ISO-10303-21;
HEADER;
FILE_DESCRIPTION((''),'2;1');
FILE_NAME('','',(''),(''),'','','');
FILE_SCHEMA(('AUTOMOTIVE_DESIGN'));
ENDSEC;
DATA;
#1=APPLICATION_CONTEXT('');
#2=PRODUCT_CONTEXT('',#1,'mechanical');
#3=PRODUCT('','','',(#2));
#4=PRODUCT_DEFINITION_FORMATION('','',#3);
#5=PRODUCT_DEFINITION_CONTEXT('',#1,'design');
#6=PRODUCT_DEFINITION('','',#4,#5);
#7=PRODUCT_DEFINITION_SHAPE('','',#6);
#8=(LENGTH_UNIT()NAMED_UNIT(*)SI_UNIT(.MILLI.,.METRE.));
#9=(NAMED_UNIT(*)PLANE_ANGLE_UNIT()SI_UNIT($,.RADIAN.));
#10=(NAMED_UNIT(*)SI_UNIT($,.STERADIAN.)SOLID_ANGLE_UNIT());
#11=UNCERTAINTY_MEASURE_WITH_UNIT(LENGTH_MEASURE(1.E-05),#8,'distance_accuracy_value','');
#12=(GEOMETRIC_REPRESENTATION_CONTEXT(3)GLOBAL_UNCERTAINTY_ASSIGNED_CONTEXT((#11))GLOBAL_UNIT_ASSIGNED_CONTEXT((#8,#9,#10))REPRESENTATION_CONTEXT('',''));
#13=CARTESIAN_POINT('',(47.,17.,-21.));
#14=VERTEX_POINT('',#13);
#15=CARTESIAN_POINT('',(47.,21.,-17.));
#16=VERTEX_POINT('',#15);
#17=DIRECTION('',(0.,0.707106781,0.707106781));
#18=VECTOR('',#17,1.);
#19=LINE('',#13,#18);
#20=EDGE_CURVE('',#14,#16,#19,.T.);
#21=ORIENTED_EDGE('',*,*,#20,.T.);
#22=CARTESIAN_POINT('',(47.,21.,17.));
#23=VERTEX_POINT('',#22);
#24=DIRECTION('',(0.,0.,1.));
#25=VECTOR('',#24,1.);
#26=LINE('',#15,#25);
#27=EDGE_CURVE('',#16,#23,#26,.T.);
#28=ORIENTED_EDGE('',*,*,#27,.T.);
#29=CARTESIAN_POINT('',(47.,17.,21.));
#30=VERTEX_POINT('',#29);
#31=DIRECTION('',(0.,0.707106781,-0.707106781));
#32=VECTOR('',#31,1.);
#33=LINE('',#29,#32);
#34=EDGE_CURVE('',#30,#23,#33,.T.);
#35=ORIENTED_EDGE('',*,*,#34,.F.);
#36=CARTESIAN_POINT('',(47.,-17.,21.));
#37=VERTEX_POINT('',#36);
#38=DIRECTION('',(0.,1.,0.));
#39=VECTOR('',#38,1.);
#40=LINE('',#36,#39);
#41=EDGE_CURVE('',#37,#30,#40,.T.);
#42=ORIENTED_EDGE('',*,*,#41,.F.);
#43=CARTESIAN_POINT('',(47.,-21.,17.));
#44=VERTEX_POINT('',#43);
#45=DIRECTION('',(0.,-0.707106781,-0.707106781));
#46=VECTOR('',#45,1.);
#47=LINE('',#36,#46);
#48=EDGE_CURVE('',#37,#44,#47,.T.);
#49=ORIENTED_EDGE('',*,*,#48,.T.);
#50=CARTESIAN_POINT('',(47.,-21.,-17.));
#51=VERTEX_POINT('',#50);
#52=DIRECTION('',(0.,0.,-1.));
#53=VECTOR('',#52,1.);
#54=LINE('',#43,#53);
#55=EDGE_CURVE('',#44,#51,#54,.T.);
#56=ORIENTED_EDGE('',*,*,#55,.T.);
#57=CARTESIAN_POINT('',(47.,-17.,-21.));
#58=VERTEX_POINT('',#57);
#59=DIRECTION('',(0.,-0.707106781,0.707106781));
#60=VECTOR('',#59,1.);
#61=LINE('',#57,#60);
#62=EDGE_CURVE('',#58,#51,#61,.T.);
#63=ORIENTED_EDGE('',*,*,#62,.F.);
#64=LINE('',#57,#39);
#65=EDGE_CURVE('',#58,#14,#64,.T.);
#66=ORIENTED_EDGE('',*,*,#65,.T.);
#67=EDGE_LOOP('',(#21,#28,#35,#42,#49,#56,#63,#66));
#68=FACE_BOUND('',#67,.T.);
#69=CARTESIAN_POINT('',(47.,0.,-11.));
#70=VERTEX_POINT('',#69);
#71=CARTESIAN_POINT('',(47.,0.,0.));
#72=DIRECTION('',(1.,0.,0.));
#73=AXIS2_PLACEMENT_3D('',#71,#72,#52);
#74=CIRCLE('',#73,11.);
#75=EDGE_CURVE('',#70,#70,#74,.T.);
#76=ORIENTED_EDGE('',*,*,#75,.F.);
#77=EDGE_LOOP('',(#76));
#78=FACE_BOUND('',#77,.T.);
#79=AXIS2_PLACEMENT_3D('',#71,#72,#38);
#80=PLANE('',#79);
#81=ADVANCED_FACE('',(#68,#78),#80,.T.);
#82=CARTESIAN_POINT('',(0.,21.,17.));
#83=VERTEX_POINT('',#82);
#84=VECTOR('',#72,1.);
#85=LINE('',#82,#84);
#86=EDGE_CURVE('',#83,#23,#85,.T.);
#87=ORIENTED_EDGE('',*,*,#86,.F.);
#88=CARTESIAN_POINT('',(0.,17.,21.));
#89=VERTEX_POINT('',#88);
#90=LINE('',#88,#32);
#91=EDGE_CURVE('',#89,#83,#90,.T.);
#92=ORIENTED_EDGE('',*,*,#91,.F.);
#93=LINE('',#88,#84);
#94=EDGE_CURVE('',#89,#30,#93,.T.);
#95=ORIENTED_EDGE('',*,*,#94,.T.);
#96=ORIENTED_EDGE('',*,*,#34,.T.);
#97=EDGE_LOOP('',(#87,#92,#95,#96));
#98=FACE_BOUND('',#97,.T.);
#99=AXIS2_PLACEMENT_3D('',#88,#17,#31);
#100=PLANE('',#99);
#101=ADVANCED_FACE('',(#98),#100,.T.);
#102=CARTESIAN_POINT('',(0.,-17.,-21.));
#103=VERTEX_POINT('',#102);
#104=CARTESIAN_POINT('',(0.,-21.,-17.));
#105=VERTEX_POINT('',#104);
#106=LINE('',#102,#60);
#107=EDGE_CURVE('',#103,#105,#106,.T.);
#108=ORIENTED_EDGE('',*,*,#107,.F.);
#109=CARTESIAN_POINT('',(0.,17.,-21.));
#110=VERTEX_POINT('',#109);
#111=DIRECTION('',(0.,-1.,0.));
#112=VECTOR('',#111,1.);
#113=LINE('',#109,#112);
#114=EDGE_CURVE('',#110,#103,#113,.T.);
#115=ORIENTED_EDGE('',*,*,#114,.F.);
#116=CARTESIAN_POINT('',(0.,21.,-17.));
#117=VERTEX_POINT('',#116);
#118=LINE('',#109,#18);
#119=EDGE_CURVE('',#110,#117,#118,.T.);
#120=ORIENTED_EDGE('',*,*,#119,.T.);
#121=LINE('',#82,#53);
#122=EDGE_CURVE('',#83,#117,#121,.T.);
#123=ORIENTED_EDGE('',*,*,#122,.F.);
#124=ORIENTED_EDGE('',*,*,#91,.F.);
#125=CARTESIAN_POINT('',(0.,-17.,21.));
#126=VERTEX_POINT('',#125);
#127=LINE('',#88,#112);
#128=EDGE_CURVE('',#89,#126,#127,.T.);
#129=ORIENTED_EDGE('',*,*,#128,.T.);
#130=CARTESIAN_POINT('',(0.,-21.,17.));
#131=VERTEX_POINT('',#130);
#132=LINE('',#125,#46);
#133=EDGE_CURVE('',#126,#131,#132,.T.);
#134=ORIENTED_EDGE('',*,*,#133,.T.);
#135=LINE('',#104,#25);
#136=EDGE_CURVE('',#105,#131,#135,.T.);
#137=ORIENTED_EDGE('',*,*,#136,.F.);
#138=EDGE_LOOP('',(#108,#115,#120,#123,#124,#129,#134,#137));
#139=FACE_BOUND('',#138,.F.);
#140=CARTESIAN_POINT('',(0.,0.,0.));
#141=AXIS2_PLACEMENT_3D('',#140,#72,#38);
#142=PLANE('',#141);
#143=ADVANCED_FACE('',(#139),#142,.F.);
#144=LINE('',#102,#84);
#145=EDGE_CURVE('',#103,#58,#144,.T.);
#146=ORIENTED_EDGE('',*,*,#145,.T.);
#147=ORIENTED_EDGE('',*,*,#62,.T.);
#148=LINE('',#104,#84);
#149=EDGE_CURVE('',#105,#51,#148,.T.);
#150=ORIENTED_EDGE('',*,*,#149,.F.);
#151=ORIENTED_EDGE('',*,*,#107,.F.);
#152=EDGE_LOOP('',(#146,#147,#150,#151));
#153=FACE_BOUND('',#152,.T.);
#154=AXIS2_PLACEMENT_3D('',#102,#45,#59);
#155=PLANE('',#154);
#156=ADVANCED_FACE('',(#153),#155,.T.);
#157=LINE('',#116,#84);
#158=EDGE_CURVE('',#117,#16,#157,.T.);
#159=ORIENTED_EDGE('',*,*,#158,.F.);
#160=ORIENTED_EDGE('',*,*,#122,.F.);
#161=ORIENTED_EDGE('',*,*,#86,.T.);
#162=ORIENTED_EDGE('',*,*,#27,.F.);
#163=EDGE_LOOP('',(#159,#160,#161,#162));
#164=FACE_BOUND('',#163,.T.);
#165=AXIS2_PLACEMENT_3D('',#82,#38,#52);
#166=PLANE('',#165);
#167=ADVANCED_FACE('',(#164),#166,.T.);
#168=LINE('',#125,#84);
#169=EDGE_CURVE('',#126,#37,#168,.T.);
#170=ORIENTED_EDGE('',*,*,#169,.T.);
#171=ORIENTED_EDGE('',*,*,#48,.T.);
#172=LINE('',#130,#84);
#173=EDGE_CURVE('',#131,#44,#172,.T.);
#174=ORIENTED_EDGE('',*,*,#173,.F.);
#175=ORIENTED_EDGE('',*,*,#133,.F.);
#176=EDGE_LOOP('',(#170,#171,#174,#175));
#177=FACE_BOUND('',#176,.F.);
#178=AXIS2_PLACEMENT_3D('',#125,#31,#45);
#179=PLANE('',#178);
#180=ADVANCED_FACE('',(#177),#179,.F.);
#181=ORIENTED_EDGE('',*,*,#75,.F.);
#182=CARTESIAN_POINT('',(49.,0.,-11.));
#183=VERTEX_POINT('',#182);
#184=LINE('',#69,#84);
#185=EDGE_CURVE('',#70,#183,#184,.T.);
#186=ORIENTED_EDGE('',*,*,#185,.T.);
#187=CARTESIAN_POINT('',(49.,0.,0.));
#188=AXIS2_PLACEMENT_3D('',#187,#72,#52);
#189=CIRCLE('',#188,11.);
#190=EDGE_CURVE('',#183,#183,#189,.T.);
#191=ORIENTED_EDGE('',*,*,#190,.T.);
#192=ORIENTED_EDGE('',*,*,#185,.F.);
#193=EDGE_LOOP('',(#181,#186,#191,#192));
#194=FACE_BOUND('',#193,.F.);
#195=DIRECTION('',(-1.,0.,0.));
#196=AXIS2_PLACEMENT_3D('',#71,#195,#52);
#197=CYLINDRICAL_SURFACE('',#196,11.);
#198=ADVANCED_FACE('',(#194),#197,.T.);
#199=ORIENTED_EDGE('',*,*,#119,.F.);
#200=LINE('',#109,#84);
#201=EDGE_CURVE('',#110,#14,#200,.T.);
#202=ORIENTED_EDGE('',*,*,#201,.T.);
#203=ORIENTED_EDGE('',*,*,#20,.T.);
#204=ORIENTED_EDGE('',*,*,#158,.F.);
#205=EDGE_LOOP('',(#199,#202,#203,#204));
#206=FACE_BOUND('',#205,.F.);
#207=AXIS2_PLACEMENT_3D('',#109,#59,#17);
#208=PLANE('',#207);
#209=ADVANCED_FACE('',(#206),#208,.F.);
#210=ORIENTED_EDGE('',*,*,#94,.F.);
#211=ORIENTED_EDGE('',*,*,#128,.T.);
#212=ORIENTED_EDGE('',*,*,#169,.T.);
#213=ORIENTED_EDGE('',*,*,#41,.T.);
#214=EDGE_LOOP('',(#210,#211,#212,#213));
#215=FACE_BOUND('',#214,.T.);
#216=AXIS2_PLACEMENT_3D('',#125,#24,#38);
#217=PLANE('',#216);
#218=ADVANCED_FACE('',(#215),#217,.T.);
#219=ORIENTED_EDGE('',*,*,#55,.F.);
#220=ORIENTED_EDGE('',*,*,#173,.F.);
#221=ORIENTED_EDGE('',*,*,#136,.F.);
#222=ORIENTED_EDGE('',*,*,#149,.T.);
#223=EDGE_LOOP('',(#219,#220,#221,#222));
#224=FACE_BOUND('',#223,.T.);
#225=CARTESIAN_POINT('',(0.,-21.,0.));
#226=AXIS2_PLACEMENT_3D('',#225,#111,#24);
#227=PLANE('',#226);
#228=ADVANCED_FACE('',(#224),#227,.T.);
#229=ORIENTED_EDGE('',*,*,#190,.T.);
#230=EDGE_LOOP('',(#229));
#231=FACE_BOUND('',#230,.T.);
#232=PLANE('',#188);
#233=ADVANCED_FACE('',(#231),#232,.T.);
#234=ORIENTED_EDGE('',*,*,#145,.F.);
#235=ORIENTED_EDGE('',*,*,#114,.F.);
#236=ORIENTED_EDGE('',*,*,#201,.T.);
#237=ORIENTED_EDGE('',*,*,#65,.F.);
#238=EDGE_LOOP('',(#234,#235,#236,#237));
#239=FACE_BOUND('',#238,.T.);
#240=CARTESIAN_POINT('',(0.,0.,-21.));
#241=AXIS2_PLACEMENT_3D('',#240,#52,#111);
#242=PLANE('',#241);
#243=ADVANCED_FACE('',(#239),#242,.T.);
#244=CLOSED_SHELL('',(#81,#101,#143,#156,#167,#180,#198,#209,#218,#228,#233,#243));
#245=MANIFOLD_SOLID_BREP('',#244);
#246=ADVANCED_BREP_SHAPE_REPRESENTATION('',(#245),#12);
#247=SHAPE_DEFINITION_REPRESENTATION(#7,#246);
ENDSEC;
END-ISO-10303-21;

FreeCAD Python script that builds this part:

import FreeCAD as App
import Part
import Sketcher
Q = App.Units.Quantity

doc = App.newDocument("Part")
params = doc.addObject("Spreadsheet::Sheet", "Params")
for row, (alias, value) in enumerate([
    ("pad1_length", "47 mm"),
    ("sketch2_diameter", "22 mm"),
    ("pad2_length", "2 mm"),
], start=1):
    params.set(f"A{row}", alias)
    params.set(f"B{row}", "=" + value)
    params.setAlias(f"B{row}", alias)

body = doc.addObject("PartDesign::Body", "Body")

sketch1 = body.newObject("Sketcher::SketchObject", "Sketch")
sketch1.AttachmentSupport = (doc.getObject("YZ_Plane"), [""])
sketch1.MapMode = "FlatFace"
sketch1.addGeometry([
    Part.LineSegment(App.Vector(-17, 21, 0), App.Vector(-21, 17, 0)),
    Part.LineSegment(App.Vector(-21, 17, 0), App.Vector(-21, -17, 0)),
    Part.LineSegment(App.Vector(-21, -17, 0), App.Vector(-17, -21, 0)),
    Part.LineSegment(App.Vector(-17, -21, 0), App.Vector(17, -21, 0)),
    Part.LineSegment(App.Vector(17, -21, 0), App.Vector(21, -17, 0)),
    Part.LineSegment(App.Vector(21, -17, 0), App.Vector(21, 17, 0)),
    Part.LineSegment(App.Vector(21, 17, 0), App.Vector(17, 21, 0)),
    Part.LineSegment(App.Vector(17, 21, 0), App.Vector(-17, 21, 0)),
], False)
sketch1.addConstraint([
    Sketcher.Constraint("Coincident", 0, 2, 1, 1),
    Sketcher.Constraint("Coincident", 1, 2, 2, 1),
    Sketcher.Constraint("Coincident", 2, 2, 3, 1),
    Sketcher.Constraint("Coincident", 3, 2, 4, 1),
    Sketcher.Constraint("Coincident", 4, 2, 5, 1),
    Sketcher.Constraint("Coincident", 5, 2, 6, 1),
    Sketcher.Constraint("Coincident", 6, 2, 7, 1),
    Sketcher.Constraint("Coincident", 7, 2, 0, 1),
    Sketcher.Constraint("Vertical", 1),
    Sketcher.Constraint("Horizontal", 3),
    Sketcher.Constraint("Vertical", 5),
    Sketcher.Constraint("Horizontal", 7),
    Sketcher.Constraint("Symmetric", 0, 2, 4, 2, -1, 1),
    Sketcher.Constraint("Symmetric", 2, 2, 6, 2, -1, 1),
    Sketcher.Constraint("Perpendicular", 0, 2),
    Sketcher.Constraint("Perpendicular", 2, 4),
    Sketcher.Constraint("Perpendicular", 4, 6),
    Sketcher.Constraint("Horizontal", 1, 2, 4, 2),
    Sketcher.Constraint("Vertical", 3, 2, 6, 2),
    Sketcher.Constraint("Equal", 7, 1),
    Sketcher.Constraint("DistanceX", 1, 2, 2, 2, Q("4 mm")),
    Sketcher.Constraint("DistanceX", 1, 2, 4, 2, Q("42 mm")),
])
pad1 = body.newObject("PartDesign::Pad", "Pad")
pad1.Profile = sketch1
pad1.setExpression("Length", "Params.pad1_length")

sketch2 = body.newObject("Sketcher::SketchObject", "Sketch001")
sketch2.AttachmentSupport = (doc.getObject("YZ_Plane"), [""])
sketch2.MapMode = "FlatFace"
sketch2.AttachmentOffset = App.Placement(App.Vector(0, 0, 47), App.Rotation())
sketch2.addGeometry(Part.Circle(App.Vector(0, 0, 0), App.Vector(0, 0, 1), 11), False)
sketch2.addConstraint([
    Sketcher.Constraint("Coincident", 0, 3, -1, 1),
    Sketcher.Constraint("Diameter", 0, Q("22 mm")),
])
sketch2.setExpression("Constraints[1]", "Params.sketch2_diameter")
pad2 = body.newObject("PartDesign::Pad", "Pad001")
pad2.Profile = sketch2
pad2.setExpression("Length", "Params.pad2_length")

doc.recompute()
